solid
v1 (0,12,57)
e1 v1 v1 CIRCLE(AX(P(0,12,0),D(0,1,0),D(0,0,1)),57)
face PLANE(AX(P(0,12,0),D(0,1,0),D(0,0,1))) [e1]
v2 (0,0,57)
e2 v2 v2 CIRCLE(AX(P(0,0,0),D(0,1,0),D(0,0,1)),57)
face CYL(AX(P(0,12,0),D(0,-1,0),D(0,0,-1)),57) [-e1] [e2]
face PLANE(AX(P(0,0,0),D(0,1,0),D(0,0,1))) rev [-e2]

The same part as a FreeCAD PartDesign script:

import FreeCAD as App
import Part
import Sketcher

V = App.Vector

doc = App.newDocument("Part")
params = doc.addObject("Spreadsheet::Sheet", "Params")
for row, (alias, value) in enumerate([
    ("sketch1_diameter", "114 mm"),
    ("pad1_length", "12 mm"),
], start=1):
    params.set(f"A{row}", alias)
    params.set(f"B{row}", "=" + value)
    params.setAlias(f"B{row}", alias)

body = doc.addObject("PartDesign::Body", "Body")

sketch1 = doc.addObject("Sketcher::SketchObject", "Sketch")
body.addObject(sketch1)
sketch1.AttachmentSupport = (doc.XZ_Plane, [""])
sketch1.MapMode = "FlatFace"
sketch1.addGeometry(Part.Circle(V(0, 0, 0), V(0, 0, 1), 57), False)
sketch1.addConstraint([
    Sketcher.Constraint("Coincident", 0, 3, -1, 1),
    Sketcher.Constraint("Diameter", 0, 114.0),
])
sketch1.setExpression("Constraints[1]", "Params.sketch1_diameter")
pad1 = doc.addObject("PartDesign::Pad", "Pad")
body.addObject(pad1)
pad1.Profile = sketch1
pad1.setExpression("Length", "Params.pad1_length")
pad1.Reversed = True

doc.recompute()
